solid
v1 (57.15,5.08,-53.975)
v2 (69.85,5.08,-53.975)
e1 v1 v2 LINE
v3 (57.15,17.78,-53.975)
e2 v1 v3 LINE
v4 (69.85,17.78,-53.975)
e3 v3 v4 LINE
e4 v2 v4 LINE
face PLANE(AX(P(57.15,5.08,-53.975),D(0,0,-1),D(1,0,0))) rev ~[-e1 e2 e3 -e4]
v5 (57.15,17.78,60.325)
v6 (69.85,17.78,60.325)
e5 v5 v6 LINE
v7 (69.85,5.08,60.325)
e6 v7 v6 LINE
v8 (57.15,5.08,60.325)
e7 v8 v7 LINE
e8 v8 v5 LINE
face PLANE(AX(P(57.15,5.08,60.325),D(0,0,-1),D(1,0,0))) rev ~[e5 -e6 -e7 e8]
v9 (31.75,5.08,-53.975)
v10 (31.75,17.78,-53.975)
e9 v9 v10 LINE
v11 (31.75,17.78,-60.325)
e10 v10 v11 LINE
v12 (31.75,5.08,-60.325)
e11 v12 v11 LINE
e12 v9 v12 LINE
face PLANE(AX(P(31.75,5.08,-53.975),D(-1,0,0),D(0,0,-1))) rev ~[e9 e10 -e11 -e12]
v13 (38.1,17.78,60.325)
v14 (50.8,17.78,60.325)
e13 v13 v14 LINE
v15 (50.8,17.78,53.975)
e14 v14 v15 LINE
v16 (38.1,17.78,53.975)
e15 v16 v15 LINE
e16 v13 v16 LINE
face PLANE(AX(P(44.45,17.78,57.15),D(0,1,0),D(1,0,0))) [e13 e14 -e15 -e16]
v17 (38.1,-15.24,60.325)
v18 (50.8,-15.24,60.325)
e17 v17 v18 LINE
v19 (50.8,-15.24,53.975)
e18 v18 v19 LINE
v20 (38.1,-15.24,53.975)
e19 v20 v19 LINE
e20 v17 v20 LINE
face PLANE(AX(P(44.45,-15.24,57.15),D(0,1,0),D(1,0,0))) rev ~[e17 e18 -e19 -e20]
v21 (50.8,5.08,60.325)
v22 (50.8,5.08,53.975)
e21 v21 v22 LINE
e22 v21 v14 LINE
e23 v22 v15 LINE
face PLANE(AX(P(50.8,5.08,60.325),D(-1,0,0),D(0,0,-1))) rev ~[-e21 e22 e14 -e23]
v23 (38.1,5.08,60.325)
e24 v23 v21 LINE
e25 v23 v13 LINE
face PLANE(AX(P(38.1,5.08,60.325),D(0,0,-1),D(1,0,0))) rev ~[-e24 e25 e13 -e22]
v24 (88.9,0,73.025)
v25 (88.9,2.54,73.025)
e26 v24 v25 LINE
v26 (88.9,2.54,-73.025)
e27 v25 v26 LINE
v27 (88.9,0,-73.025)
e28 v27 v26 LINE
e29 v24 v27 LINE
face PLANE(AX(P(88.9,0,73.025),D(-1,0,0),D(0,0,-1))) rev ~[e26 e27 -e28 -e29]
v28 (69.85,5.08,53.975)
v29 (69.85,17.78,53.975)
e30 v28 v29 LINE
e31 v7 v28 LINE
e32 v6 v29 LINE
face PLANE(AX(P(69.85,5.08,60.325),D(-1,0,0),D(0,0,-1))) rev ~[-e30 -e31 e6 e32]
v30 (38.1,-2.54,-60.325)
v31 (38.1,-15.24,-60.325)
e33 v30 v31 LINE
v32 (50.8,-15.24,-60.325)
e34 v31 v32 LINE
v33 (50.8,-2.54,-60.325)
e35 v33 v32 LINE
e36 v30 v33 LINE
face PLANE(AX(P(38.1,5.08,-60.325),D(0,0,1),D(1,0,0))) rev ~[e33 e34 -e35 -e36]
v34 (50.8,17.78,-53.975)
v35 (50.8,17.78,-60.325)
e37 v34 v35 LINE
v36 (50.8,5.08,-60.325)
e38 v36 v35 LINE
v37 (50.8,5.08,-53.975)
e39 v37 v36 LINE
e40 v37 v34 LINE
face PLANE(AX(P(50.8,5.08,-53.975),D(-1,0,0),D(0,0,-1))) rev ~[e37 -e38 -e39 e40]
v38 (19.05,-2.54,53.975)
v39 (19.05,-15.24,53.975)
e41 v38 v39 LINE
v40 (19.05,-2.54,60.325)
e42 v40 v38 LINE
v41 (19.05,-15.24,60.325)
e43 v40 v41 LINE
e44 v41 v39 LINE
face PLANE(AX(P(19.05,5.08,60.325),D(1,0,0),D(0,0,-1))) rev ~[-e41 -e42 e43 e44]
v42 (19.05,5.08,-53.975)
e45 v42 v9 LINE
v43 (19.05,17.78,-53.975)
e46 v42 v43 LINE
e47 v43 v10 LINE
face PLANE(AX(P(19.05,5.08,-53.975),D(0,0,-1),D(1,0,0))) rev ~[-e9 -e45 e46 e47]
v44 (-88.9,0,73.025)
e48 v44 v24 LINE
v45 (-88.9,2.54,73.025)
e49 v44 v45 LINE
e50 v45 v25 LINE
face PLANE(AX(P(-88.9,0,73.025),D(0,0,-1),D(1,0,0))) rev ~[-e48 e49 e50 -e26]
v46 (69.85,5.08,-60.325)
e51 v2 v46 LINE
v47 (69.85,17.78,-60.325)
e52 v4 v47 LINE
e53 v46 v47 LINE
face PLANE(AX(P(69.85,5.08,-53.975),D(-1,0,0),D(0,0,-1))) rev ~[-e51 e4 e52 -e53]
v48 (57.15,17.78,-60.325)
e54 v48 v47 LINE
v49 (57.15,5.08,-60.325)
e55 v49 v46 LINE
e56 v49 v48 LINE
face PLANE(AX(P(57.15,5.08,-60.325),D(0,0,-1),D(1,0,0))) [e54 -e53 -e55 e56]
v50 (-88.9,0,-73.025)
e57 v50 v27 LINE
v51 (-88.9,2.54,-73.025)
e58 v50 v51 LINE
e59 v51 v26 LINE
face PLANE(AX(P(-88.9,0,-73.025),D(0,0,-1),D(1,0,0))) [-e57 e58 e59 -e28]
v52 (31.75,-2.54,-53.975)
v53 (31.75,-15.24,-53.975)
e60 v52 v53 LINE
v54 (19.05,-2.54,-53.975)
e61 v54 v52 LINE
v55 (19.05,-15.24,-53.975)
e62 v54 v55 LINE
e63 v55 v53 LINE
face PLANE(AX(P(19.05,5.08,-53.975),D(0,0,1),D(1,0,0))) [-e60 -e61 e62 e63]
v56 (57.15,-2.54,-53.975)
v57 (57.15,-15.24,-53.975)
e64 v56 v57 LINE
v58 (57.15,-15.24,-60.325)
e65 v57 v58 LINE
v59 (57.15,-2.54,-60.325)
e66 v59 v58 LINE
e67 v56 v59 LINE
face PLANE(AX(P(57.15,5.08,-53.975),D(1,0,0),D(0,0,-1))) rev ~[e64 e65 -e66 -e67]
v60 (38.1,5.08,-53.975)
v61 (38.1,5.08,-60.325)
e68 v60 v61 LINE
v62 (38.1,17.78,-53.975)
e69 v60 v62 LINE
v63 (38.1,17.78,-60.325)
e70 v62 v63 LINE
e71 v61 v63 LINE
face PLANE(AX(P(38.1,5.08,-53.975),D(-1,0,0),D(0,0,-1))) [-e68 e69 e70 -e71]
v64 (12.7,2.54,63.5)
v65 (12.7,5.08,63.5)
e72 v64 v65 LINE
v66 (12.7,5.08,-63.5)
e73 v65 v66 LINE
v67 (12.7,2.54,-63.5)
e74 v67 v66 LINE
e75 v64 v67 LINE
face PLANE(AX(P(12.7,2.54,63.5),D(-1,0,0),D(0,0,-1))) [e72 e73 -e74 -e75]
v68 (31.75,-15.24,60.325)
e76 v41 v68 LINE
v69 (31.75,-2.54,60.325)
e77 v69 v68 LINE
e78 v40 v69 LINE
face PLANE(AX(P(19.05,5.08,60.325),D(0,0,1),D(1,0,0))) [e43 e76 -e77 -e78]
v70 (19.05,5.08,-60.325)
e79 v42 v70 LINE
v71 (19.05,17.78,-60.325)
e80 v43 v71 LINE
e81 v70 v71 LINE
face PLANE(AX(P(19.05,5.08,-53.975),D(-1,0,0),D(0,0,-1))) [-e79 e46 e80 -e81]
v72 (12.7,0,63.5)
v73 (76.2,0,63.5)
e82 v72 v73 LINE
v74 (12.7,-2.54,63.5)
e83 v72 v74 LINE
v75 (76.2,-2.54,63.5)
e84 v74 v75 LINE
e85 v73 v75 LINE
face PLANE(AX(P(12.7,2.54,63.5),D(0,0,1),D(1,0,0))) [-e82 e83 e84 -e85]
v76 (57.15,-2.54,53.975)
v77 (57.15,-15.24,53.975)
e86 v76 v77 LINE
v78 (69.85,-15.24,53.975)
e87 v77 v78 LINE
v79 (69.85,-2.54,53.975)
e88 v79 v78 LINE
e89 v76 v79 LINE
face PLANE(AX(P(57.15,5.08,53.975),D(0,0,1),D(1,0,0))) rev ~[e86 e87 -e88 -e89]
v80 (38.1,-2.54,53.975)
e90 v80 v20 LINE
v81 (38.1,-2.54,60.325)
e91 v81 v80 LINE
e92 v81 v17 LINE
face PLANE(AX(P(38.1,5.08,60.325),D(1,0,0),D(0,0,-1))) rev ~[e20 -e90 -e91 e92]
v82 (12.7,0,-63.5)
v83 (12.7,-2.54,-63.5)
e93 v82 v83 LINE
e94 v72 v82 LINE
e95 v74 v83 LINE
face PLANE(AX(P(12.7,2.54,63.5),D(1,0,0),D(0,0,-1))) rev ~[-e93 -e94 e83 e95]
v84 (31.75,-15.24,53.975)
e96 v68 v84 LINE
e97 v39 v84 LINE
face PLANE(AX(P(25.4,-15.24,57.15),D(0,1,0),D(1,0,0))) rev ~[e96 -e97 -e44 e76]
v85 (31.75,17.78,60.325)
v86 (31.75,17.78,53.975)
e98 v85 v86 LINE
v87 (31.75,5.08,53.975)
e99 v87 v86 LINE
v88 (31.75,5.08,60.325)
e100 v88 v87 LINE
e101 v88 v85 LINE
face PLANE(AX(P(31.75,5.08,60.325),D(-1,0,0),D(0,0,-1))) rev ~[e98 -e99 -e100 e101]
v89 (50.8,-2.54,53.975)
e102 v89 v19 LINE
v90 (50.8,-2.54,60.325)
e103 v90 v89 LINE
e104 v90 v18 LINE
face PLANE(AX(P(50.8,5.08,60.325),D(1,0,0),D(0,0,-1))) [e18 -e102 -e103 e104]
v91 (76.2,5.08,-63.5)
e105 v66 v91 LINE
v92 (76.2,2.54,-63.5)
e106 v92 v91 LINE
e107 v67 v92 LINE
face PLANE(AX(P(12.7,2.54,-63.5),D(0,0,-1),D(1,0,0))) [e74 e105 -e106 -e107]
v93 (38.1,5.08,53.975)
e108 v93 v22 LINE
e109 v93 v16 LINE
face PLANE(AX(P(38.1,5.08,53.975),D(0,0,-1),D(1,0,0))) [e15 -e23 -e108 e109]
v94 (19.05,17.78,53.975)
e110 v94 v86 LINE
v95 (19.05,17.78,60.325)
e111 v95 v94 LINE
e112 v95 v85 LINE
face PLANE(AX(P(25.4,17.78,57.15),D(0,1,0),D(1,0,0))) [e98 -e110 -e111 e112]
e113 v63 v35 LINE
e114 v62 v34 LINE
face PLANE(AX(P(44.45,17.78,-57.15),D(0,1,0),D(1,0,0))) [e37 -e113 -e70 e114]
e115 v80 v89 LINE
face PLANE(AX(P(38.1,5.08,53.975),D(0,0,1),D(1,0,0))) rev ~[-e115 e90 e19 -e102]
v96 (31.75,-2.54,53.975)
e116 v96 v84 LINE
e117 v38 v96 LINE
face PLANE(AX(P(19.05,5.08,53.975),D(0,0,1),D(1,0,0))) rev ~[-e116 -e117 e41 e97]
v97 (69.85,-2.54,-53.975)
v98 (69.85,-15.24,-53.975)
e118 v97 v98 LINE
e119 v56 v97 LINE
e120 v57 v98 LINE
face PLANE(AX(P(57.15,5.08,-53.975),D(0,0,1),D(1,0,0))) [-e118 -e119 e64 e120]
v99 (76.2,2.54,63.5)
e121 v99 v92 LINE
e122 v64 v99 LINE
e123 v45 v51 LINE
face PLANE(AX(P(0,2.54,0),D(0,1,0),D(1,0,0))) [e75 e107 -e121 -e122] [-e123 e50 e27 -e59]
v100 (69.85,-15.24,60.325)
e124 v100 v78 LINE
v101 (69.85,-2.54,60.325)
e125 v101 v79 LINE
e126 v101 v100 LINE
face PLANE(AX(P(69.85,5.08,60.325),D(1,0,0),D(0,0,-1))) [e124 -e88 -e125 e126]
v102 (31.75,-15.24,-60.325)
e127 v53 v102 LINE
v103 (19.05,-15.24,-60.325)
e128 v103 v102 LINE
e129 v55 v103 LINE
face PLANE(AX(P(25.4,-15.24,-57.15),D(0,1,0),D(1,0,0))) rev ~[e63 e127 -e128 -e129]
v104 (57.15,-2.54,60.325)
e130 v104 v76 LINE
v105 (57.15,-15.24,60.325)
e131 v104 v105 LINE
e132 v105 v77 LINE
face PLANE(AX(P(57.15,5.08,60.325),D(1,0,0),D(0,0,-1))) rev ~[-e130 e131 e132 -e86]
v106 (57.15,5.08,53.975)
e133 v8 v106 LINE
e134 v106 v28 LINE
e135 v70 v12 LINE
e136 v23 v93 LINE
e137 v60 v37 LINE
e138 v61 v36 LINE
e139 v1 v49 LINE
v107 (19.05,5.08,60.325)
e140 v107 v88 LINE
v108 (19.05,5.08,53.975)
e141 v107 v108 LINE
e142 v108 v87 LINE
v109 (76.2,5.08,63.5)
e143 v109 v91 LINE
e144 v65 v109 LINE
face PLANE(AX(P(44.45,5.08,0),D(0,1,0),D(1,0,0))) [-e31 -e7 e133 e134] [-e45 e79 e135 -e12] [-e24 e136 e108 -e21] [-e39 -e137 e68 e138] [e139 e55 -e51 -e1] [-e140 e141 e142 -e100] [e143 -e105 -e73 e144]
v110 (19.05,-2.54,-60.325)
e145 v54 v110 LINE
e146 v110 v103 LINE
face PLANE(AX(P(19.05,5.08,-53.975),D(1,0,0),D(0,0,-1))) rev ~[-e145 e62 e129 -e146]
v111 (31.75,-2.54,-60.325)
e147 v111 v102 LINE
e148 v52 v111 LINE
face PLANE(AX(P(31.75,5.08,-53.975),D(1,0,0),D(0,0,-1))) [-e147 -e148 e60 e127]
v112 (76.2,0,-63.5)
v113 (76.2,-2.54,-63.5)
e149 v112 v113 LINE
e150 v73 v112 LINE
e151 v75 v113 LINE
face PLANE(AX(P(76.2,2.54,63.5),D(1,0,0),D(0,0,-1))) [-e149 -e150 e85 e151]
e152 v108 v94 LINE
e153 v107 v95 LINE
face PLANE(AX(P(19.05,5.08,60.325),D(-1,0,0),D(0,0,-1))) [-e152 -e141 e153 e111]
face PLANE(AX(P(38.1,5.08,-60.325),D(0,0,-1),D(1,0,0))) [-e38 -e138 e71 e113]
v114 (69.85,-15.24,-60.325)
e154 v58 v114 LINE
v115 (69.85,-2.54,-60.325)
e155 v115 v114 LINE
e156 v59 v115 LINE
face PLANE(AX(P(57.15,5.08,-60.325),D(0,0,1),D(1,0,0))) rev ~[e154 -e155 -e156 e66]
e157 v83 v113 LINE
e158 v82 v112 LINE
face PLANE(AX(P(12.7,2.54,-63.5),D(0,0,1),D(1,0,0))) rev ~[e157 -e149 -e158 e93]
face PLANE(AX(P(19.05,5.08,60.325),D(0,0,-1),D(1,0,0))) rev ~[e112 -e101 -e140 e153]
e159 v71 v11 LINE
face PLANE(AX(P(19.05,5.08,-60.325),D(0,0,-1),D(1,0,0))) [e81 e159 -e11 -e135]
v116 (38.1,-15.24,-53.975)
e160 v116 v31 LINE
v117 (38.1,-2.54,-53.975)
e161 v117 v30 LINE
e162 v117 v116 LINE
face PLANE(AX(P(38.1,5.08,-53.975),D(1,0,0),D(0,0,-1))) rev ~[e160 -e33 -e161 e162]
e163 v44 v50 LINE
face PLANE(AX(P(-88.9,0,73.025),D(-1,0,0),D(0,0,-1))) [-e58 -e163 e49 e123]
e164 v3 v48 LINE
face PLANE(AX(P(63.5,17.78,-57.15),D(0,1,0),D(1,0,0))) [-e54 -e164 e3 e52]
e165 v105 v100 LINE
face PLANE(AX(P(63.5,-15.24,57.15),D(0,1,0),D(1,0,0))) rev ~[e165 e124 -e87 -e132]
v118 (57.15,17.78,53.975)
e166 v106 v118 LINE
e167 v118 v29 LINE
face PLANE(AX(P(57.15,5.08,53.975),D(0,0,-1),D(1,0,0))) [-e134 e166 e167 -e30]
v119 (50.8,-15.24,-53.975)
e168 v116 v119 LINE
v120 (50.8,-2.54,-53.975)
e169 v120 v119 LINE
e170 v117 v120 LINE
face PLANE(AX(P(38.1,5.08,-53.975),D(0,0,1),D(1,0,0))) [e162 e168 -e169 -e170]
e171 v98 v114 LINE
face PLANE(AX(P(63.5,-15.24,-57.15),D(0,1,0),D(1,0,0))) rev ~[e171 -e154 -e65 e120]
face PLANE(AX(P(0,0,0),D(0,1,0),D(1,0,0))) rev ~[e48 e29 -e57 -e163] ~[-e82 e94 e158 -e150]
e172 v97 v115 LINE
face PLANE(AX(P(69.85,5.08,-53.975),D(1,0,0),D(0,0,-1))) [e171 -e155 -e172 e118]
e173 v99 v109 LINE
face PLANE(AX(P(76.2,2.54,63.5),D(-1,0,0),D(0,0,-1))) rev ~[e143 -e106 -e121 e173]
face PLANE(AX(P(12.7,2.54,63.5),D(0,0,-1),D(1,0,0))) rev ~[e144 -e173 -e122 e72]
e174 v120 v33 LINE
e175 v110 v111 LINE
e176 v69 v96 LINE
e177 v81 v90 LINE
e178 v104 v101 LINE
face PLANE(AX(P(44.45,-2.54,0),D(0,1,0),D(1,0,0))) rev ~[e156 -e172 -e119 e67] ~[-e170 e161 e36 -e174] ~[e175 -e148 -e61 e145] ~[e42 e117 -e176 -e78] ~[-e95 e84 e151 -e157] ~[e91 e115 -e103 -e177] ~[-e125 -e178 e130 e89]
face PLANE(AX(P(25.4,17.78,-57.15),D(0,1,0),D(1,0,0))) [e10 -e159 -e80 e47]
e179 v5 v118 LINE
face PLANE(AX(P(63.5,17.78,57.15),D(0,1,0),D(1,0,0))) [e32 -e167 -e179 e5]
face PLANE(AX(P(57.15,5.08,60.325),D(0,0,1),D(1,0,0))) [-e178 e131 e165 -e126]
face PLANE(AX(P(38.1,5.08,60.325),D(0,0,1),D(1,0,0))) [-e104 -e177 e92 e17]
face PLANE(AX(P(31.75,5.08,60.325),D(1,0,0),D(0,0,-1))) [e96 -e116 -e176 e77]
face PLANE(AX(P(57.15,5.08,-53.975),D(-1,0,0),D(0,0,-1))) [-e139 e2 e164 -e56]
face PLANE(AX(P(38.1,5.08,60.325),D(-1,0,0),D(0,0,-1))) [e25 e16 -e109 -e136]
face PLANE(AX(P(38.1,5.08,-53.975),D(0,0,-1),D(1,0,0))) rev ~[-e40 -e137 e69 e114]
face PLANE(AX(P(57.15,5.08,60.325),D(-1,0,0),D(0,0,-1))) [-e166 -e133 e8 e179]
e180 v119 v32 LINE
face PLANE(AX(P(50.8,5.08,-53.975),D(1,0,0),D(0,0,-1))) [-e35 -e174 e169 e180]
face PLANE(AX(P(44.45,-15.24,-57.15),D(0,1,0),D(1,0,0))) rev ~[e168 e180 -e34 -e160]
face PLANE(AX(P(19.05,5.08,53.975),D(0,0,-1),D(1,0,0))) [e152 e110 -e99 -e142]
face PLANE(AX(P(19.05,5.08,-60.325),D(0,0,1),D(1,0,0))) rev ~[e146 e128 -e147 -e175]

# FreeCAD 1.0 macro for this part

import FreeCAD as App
import Part
import Sketcher
from FreeCAD import Vector
Q = App.Units.Quantity


def add_polygon(sketch, points):
    """Adds a closed chain of lines whose ends are joined by coincident constraints."""
    first, n = sketch.GeometryCount, len(points)
    for a, b in zip(points, points[1:] + points[:1]):
        sketch.addGeometry(Part.LineSegment(App.Vector(*a, 0), App.Vector(*b, 0)), False)
    for i in range(n):
        sketch.addConstraint(Sketcher.Constraint("Coincident", first + i, 2, first + (i + 1) % n, 1))

doc = App.newDocument("Part")
body = doc.addObject("PartDesign::Body", "Body")

sketch1 = body.newObject("Sketcher::SketchObject", "Sketch")
sketch1.AttachmentSupport = (doc.getObject("XZ_Plane"), [""])
sketch1.MapMode = "FlatFace"
add_polygon(sketch1, [(-89, -73), (-89, 73), (89, 73), (89, -73)])
sketch1.addConstraint(Sketcher.Constraint("Vertical", 0))
sketch1.addConstraint(Sketcher.Constraint("Horizontal", 1))
sketch1.addConstraint(Sketcher.Constraint("Vertical", 2))
sketch1.addConstraint(Sketcher.Constraint("Horizontal", 3))
sketch1.addConstraint(Sketcher.Constraint("Symmetric", 0, 2, 2, 2, -1, 1))
sketch1.addConstraint(Sketcher.Constraint("DistanceX", 1, 1, 1, 2, Q("7 in")))
sketch1.addConstraint(Sketcher.Constraint("DistanceY", 0, 1, 0, 2, Q("5.75 in")))
pad1 = body.newObject("PartDesign::Pad", "Pad")
pad1.Profile = sketch1
pad1.Length = Q("0.1 in")
pad1.Reversed = True

sketch2 = body.newObject("Sketcher::SketchObject", "Sketch001")
sketch2.AttachmentSupport = (doc.getObject("XZ_Plane"), [""])
sketch2.MapMode = "FlatFace"
sketch2.AttachmentOffset = App.Placement(Vector(0, 0, -0.1 * 25.4), App.Rotation())
add_polygon(sketch2, [(13, -64), (13, 64), (76, 64), (76, -64)])
sketch2.addConstraint(Sketcher.Constraint("Vertical", 0))
sketch2.addConstraint(Sketcher.Constraint("Horizontal", 1))
sketch2.addConstraint(Sketcher.Constraint("Vertical", 2))
sketch2.addConstraint(Sketcher.Constraint("Horizontal", 3))
sketch2.addConstraint(Sketcher.Constraint("DistanceY", 0, 1, 0, 2, Q("5 in")))
sketch2.addConstraint(Sketcher.Constraint("DistanceX", 1, 1, 1, 2, Q("2.5 in")))
sketch2.addConstraint(Sketcher.Constraint("DistanceX", -1, 1, 1, 2, Q("3 in")))
sketch2.addConstraint(Sketcher.Constraint("DistanceY", -1, 1, 0, 2, Q("2.5 in")))
pad2 = body.newObject("PartDesign::Pad", "Pad001")
pad2.Profile = sketch2
pad2.Type = "TwoLengths"
pad2.Length = Q("0.1 in")
pad2.Length2 = Q("0.2 in")
pad2.Reversed = True

sketch3 = body.newObject("Sketcher::SketchObject", "Sketch002")
sketch3.AttachmentSupport = (doc.getObject("XZ_Plane"), [""])
sketch3.MapMode = "FlatFace"
sketch3.AttachmentOffset = App.Placement(Vector(0, 0, -0.2 * 25.4), App.Rotation())
add_polygon(sketch3, [(19, -60), (19, -54), (32, -54), (32, -60)])
add_polygon(sketch3, [(38, -60), (38, -54), (51, -54), (51, -60)])
add_polygon(sketch3, [(57, -60), (57, -54), (70, -54), (70, -60)])
add_polygon(sketch3, [(57, 54), (57, 60), (70, 60), (70, 54)])
add_polygon(sketch3, [(38, 54), (38, 60), (51, 60), (51, 54)])
add_polygon(sketch3, [(19, 54), (19, 60), (32, 60), (32, 54)])
sketch3.addConstraint(Sketcher.Constraint("Vertical", 0))
sketch3.addConstraint(Sketcher.Constraint("Horizontal", 1))
sketch3.addConstraint(Sketcher.Constraint("Vertical", 2))
sketch3.addConstraint(Sketcher.Constraint("Horizontal", 3))
sketch3.addConstraint(Sketcher.Constraint("Vertical", 4))
sketch3.addConstraint(Sketcher.Constraint("Horizontal", 5))
sketch3.addConstraint(Sketcher.Constraint("Vertical", 6))
sketch3.addConstraint(Sketcher.Constraint("Horizontal", 7))
sketch3.addConstraint(Sketcher.Constraint("Vertical", 8))
sketch3.addConstraint(Sketcher.Constraint("Horizontal", 9))
sketch3.addConstraint(Sketcher.Constraint("Vertical", 10))
sketch3.addConstraint(Sketcher.Constraint("Horizontal", 11))
sketch3.addConstraint(Sketcher.Constraint("Vertical", 12))
sketch3.addConstraint(Sketcher.Constraint("Horizontal", 13))
sketch3.addConstraint(Sketcher.Constraint("Vertical", 14))
sketch3.addConstraint(Sketcher.Constraint("Horizontal", 15))
sketch3.addConstraint(Sketcher.Constraint("Vertical", 16))
sketch3.addConstraint(Sketcher.Constraint("Horizontal", 17))
sketch3.addConstraint(Sketcher.Constraint("Vertical", 18))
sketch3.addConstraint(Sketcher.Constraint("Horizontal", 19))
sketch3.addConstraint(Sketcher.Constraint("Vertical", 20))
sketch3.addConstraint(Sketcher.Constraint("Horizontal", 21))
sketch3.addConstraint(Sketcher.Constraint("Vertical", 22))
sketch3.addConstraint(Sketcher.Constraint("Horizontal", 23))
sketch3.addConstraint(Sketcher.Constraint("Symmetric", 11, 2, 12, 2, -1))
sketch3.addConstraint(Sketcher.Constraint("Symmetric", 9, 2, 14, 2, -1))
sketch3.addConstraint(Sketcher.Constraint("Symmetric", 7, 2, 16, 2, -1))
sketch3.addConstraint(Sketcher.Constraint("Symmetric", 5, 2, 18, 2, -1))
sketch3.addConstraint(Sketcher.Constraint("Symmetric", 3, 2, 20, 2, -1))
sketch3.addConstraint(Sketcher.Constraint("Symmetric", 1, 2, 22, 2, -1))
sketch3.addConstraint(Sketcher.Constraint("Horizontal", 1, 2, 4, 2))
sketch3.addConstraint(Sketcher.Constraint("Horizontal", 3, 2, 6, 2))
sketch3.addConstraint(Sketcher.Constraint("Horizontal", 5, 2, 8, 2))
sketch3.addConstraint(Sketcher.Constraint("Horizontal", 7, 2, 10, 2))
sketch3.addConstraint(Sketcher.Constraint("Equal", 3, 5))
sketch3.addConstraint(Sketcher.Constraint("Equal", 7, 9))
sketch3.addConstraint(Sketcher.Constraint("DistanceX", 1, 1, 1, 2, Q("0.5 in")))
sketch3.addConstraint(Sketcher.Constraint("DistanceX", -1, 1, 5, 2, Q("2 in")))
sketch3.addConstraint(Sketcher.Constraint("DistanceX", 1, 2, 8, 2, Q("1 in")))
sketch3.addConstraint(Sketcher.Constraint("DistanceY", 0, 1, 0, 2, Q("0.25 in")))
sketch3.addConstraint(Sketcher.Constraint("DistanceY", 8, 2, 12, 2, Q("4.5 in")))
sketch3.addConstraint(Sketcher.Constraint("DistanceX", -1, 1, 0, 2, Q("0.75 in")))
pad3 = body.newObject("PartDesign::Pad", "Pad002")
pad3.Profile = sketch3
pad3.Type = "TwoLengths"
pad3.Length = Q("0.5 in")
pad3.Length2 = Q("0.8 in")
pad3.Reversed = True

doc.recompute()
